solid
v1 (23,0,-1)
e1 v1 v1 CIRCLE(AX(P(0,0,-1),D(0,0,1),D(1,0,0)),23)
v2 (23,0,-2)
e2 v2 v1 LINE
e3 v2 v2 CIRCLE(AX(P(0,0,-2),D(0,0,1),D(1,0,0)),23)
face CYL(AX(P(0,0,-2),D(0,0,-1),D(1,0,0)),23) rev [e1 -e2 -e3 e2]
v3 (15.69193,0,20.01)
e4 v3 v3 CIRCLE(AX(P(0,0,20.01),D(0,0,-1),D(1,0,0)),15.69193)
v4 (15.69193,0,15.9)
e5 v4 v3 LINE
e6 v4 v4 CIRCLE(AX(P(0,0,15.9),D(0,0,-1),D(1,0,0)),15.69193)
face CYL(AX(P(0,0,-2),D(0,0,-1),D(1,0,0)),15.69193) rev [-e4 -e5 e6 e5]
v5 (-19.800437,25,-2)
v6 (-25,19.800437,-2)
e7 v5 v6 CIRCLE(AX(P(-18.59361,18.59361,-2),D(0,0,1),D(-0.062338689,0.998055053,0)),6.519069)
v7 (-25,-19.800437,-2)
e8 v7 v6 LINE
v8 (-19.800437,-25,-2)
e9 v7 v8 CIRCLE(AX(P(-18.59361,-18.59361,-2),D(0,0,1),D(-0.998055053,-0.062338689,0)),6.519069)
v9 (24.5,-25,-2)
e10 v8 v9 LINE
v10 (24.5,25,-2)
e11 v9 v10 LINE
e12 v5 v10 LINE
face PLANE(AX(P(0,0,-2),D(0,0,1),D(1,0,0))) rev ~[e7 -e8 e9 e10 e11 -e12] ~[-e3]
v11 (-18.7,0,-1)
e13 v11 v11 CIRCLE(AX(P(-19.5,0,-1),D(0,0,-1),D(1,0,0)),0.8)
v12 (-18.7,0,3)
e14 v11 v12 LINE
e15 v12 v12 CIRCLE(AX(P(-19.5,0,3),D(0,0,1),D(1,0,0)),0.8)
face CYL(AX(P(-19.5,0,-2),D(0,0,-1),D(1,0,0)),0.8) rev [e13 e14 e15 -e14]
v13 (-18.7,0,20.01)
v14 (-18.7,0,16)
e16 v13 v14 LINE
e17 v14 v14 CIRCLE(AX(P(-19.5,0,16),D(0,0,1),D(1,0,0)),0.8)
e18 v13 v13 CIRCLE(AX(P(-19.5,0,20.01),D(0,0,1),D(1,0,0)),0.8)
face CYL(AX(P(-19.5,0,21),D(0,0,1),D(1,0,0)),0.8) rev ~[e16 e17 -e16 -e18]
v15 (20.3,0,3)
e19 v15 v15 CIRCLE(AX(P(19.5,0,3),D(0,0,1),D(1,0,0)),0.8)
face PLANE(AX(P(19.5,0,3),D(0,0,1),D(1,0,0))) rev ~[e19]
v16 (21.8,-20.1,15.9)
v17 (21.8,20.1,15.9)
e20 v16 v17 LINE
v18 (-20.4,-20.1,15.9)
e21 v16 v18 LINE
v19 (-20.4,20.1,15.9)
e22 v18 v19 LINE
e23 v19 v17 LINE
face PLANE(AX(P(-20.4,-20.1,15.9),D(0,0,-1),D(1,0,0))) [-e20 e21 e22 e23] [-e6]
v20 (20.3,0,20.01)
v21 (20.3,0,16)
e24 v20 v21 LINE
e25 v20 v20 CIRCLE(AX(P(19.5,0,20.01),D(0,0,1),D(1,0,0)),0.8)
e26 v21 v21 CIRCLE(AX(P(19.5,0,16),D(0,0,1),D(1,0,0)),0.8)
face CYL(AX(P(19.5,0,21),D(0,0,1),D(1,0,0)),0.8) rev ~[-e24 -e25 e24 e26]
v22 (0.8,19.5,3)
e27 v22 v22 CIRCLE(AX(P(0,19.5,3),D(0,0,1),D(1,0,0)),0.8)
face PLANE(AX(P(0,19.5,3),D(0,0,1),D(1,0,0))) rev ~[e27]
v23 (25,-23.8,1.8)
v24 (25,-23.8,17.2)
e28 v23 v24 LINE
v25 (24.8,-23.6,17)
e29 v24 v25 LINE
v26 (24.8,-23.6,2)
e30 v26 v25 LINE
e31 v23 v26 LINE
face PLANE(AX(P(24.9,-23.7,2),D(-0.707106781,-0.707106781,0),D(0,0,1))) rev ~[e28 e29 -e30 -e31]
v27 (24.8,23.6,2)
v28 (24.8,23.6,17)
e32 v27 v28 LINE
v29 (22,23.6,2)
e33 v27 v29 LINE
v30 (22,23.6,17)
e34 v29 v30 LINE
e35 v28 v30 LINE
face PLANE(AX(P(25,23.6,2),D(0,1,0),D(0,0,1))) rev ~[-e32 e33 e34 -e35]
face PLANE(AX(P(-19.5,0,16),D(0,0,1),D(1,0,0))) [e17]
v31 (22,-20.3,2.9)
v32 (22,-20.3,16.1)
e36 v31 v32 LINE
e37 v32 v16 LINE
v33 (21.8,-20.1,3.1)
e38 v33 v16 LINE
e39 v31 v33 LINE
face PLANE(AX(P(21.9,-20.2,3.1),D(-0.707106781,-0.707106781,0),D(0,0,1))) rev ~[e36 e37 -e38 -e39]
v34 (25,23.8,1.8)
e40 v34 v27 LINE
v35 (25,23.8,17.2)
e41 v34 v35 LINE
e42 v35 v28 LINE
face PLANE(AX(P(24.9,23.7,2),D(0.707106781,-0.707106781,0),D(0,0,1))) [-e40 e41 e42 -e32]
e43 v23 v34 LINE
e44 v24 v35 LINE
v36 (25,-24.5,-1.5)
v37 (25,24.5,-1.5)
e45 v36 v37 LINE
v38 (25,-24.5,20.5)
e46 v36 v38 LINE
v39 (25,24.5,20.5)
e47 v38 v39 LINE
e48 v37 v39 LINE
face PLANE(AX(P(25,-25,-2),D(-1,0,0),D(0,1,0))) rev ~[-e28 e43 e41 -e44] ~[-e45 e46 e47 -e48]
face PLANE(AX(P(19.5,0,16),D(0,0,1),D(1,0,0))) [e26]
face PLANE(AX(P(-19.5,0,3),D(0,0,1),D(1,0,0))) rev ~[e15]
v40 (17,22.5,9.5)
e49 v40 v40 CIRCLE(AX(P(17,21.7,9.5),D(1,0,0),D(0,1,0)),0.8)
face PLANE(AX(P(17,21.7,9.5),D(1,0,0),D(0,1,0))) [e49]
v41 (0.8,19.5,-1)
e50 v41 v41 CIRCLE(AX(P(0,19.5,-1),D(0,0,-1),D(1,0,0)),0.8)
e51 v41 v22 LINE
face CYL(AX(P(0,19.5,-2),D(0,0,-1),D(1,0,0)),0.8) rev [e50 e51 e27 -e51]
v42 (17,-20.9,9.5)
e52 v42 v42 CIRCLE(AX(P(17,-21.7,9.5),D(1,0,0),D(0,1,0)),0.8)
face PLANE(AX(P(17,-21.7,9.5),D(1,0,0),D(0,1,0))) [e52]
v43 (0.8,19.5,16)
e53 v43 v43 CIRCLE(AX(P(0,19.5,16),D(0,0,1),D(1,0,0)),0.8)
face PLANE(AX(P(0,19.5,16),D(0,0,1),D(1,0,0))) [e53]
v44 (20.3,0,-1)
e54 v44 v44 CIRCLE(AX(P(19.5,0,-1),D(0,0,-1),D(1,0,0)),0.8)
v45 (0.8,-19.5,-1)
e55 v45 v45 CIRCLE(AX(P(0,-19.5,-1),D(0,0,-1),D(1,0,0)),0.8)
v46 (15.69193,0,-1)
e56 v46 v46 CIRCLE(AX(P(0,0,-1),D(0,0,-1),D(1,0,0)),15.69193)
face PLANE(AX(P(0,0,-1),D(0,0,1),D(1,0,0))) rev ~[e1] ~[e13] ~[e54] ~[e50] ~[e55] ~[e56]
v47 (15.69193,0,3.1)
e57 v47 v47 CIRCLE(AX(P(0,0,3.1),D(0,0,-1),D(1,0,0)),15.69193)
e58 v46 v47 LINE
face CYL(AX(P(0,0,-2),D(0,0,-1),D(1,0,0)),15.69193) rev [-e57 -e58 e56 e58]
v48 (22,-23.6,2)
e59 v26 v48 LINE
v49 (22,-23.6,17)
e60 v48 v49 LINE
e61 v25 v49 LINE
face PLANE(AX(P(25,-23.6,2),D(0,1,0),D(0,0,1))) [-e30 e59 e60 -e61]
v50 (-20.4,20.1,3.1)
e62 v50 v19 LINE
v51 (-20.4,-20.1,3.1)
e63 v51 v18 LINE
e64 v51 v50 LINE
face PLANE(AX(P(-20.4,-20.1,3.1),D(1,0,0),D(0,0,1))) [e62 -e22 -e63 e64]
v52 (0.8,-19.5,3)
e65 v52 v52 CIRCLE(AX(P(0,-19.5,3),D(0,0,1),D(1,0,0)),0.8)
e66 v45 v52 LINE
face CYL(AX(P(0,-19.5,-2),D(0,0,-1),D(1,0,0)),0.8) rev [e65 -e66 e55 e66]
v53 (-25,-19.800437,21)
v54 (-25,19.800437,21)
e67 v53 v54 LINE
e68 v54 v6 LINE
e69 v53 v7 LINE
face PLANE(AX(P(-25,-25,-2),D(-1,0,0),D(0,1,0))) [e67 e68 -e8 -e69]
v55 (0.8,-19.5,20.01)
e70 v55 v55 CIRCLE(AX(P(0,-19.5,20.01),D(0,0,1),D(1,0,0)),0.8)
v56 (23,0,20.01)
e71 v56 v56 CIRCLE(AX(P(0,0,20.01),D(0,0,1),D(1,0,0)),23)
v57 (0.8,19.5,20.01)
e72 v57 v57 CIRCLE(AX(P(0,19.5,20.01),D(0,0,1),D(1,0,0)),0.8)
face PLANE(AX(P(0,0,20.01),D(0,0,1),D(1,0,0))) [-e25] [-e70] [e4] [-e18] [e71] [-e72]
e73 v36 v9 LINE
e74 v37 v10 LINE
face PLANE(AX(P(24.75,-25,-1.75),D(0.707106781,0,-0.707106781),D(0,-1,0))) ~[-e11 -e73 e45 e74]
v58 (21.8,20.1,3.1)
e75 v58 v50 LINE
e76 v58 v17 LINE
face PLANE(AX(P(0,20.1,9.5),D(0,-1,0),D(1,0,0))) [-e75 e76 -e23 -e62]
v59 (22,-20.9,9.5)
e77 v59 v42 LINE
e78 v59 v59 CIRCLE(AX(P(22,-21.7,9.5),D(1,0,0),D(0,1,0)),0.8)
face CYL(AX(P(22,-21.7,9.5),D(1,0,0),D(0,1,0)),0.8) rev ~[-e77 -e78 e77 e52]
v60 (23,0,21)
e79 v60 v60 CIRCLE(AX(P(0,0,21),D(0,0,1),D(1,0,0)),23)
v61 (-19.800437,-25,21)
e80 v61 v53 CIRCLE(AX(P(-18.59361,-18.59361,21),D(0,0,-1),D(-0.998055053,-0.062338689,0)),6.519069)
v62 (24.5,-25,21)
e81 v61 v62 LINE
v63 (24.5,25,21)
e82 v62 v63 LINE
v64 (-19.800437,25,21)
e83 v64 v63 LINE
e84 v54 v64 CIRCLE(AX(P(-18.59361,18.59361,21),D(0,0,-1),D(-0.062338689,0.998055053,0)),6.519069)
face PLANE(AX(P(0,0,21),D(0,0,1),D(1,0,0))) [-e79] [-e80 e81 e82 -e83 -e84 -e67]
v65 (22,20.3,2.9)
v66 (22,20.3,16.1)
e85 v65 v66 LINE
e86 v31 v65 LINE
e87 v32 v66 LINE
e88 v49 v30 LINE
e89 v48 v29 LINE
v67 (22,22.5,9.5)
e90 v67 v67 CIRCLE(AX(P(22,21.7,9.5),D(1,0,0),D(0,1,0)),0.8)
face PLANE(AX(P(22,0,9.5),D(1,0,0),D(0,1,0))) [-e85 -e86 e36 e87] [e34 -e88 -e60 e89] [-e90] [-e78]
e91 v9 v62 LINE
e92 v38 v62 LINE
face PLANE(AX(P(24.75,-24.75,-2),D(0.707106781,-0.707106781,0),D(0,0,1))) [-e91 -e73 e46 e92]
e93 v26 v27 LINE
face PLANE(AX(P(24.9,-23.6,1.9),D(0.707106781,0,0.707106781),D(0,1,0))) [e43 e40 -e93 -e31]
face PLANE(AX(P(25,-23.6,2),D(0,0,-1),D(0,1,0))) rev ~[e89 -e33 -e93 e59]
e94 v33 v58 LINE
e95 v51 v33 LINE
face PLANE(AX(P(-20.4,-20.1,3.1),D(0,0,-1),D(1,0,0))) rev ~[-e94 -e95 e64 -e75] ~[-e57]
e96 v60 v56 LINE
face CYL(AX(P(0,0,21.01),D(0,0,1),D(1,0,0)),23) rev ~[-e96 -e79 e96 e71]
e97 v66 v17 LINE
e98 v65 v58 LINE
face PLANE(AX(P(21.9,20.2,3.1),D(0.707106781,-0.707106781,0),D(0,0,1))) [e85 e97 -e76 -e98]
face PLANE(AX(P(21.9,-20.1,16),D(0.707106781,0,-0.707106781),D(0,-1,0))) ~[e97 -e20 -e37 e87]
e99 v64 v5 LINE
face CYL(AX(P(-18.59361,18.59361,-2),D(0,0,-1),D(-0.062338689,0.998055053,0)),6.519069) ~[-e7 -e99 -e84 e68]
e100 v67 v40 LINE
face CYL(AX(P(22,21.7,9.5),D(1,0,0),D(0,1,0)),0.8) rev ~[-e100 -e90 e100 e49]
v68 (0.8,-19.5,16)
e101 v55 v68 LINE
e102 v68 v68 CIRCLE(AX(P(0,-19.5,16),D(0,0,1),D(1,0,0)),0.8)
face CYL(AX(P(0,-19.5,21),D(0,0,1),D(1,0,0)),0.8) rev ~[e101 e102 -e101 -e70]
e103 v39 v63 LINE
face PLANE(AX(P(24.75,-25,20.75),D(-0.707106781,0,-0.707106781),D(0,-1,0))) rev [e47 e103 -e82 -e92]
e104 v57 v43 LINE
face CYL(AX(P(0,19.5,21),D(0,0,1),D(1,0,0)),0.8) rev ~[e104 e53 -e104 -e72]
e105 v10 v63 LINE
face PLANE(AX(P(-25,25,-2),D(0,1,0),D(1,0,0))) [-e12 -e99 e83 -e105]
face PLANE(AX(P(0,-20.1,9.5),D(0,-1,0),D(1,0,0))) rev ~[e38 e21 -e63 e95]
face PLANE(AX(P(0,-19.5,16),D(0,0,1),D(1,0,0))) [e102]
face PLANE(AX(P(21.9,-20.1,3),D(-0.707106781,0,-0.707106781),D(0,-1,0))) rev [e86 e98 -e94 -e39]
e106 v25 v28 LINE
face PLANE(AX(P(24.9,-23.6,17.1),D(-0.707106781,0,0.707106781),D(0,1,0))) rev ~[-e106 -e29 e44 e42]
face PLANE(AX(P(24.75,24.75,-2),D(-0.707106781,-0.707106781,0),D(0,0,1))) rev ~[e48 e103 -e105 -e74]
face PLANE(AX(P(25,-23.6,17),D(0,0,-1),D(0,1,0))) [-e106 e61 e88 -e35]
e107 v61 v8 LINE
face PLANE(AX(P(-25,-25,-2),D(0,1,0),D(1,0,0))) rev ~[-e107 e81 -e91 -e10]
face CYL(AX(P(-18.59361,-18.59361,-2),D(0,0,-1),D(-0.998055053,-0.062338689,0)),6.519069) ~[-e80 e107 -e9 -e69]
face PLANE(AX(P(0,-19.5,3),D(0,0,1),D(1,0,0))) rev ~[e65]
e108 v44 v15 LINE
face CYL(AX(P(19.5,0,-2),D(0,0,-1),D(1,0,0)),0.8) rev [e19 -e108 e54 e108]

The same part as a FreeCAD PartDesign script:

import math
import FreeCAD as App
import Part
import Sketcher


def edges_at(feature, points):
    """Names of the edges that pass closest to the given points."""
    edges = feature.Shape.Edges
    near = lambda p: min(range(len(edges)), key=lambda i: edges[i].distToShape(Part.Vertex(*p))[0])
    return sorted({f"Edge{near(p) + 1}" for p in points})


def add_polygon(sketch, points):
    """Adds a closed chain of lines whose ends are joined by coincident constraints."""
    first, n = sketch.GeometryCount, len(points)
    for a, b in zip(points, points[1:] + points[:1]):
        sketch.addGeometry(Part.LineSegment(App.Vector(*a, 0), App.Vector(*b, 0)), False)
    for i in range(n):
        sketch.addConstraint(Sketcher.Constraint("Coincident", first + i, 2, first + (i + 1) % n, 1))

doc = App.newDocument("Part")
body = doc.addObject("PartDesign::Body", "Body")

# Sketch on XY plane
sketch1 = body.newObject("Sketcher::SketchObject", "Sketch")
sketch1.AttachmentSupport = (doc.getObject("XY_Plane"), [""])
sketch1.MapMode = "FlatFace"
add_polygon(sketch1, [(-25, 25), (-25, -25), (25, -25), (25, 25)])  # lines 0-3
sketch1.addGeometry(Part.Circle(App.Vector(0, 0, 0), App.Vector(0, 0, 1), 16), False)  # 4
sketch1.addConstraint([
    Sketcher.Constraint("Vertical", 0),
    Sketcher.Constraint("Horizontal", 1),
    Sketcher.Constraint("Vertical", 2),
    Sketcher.Constraint("Horizontal", 3),
    Sketcher.Constraint("Coincident", 4, 3, -1, 1),
    Sketcher.Constraint("Symmetric", 0, 2, 2, 2, -1, 1),
    Sketcher.Constraint("Equal", 3, 0),
    Sketcher.Constraint("DistanceX", 1, 1, 1, 2, 50.0),
    Sketcher.Constraint("Diameter", 4, 31.38386),
])
pad1 = body.newObject("PartDesign::Pad", "Pad")
pad1.Profile = sketch1
pad1.Length = 23

# Sketch on XZ plane
sketch2 = body.newObject("Sketcher::SketchObject", "Sketch001")
sketch2.AttachmentSupport = (doc.getObject("XZ_Plane"), [""])
sketch2.MapMode = "FlatFace"
sketch2.AttachmentOffset = App.Placement(App.Vector(0, 0, 20.1), App.Rotation())
add_polygon(sketch2, [(-20, 18), (-20, 5), (20, 5), (20, 18)])  # lines 0-3
sketch2.addConstraint([
    Sketcher.Constraint("Vertical", 0),
    Sketcher.Constraint("Horizontal", 1),
    Sketcher.Constraint("Vertical", 2),
    Sketcher.Constraint("Horizontal", 3),
    Sketcher.Constraint("DistanceX", 1, 1, 1, 2, 40.8),
    Sketcher.Constraint("DistanceY", 0, 2, 0, 1, 12.8),
    Sketcher.Constraint("DistanceX", 0, 2, -1, 1, 20.4),
    Sketcher.Constraint("DistanceY", -1, 1, 0, 2, 5.1),
])
pocket1 = body.newObject("PartDesign::Pocket", "Pocket")
pocket1.Profile = sketch2
pocket1.Length = 40.2

# Sketch on YZ plane
sketch3 = body.newObject("Sketcher::SketchObject", "Sketch002")
sketch3.AttachmentSupport = (doc.getObject("YZ_Plane"), [""])
sketch3.MapMode = "FlatFace"
sketch3.AttachmentOffset = App.Placement(App.Vector(0, 0, 25), App.Rotation())
add_polygon(sketch3, [(-24, 19), (-24, 4), (24, 4), (24, 19)])  # lines 0-3
sketch3.addConstraint([
    Sketcher.Constraint("Vertical", 0),
    Sketcher.Constraint("Horizontal", 1),
    Sketcher.Constraint("Vertical", 2),
    Sketcher.Constraint("Horizontal", 3),
    Sketcher.Constraint("DistanceY", 0, 2, 0, 1, 15.0),
    Sketcher.Constraint("DistanceX", 1, 1, 1, 2, 47.2),
    Sketcher.Constraint("DistanceY", -1, 1, 0, 2, 4.0),
    Sketcher.Constraint("DistanceX", 0, 2, -1, 1, 23.6),
])
pocket2 = body.newObject("PartDesign::Pocket", "Pocket001")
pocket2.Profile = sketch3
pocket2.Length = 3

# Sketch on YZ plane
sketch4 = body.newObject("Sketcher::SketchObject", "Sketch003")
sketch4.AttachmentSupport = (doc.getObject("YZ_Plane"), [""])
sketch4.MapMode = "FlatFace"
sketch4.AttachmentOffset = App.Placement(App.Vector(0, 0, 22), App.Rotation())
sketch4.addGeometry(Part.Circle(App.Vector(-21.7, 11.5, 0), App.Vector(0, 0, 1), 0.8), False)  # 0
sketch4.addGeometry(Part.Circle(App.Vector(21.7, 11.5, 0), App.Vector(0, 0, 1), 0.8), False)  # 1
add_polygon(sketch4, [(-20.1, 17.9), (-20.1, 5.1), (20.1, 5.1), (20.1, 17.9)])  # lines 2-5
sketch4.addConstraint([
    Sketcher.Constraint("Vertical", 2),
    Sketcher.Constraint("Horizontal", 3),
    Sketcher.Constraint("Vertical", 4),
    Sketcher.Constraint("Horizontal", 5),
    Sketcher.Constraint("Equal", 0, 1),
    Sketcher.Constraint("Symmetric", 0, 3, 1, 3, -2),
    Sketcher.Constraint("Diameter", 0, 1.6),
    Sketcher.Constraint("DistanceX", 3, 1, 3, 2, 40.2),
    Sketcher.Constraint("DistanceY", 2, 2, 2, 1, 12.8),
    Sketcher.Constraint("DistanceX", 0, 3, -1, 1, 21.7),
    Sketcher.Constraint("DistanceY", -1, 1, 0, 3, 11.5),
    Sketcher.Constraint("DistanceX", 2, 2, -1, 1, 20.1),
    Sketcher.Constraint("DistanceY", -1, 1, 2, 2, 5.1),
])
pocket3 = body.newObject("PartDesign::Pocket", "Pocket002")
pocket3.Profile = sketch4
pocket3.Length = 5

# Sketch on XY plane
sketch5 = body.newObject("Sketcher::SketchObject", "Sketch004")
sketch5.AttachmentSupport = (doc.getObject("XY_Plane"), [""])
sketch5.MapMode = "FlatFace"
sketch5.addGeometry(Part.Circle(App.Vector(0, 0, 0), App.Vector(0, 0, 1), 23), False)
sketch5.addConstraint([
    Sketcher.Constraint("Coincident", 0, 3, -1, 1),
    Sketcher.Constraint("Diameter", 0, 46.0),
])
pocket4 = body.newObject("PartDesign::Pocket", "Pocket003")
pocket4.Profile = sketch5
pocket4.Length = 1
pocket4.Reversed = True

# Sketch on XY plane
sketch6 = body.newObject("Sketcher::SketchObject", "Sketch005")
sketch6.AttachmentSupport = (doc.getObject("XY_Plane"), [""])
sketch6.MapMode = "FlatFace"
sketch6.AttachmentOffset = App.Placement(App.Vector(0, 0, 23.01), App.Rotation())
sketch6.addGeometry(Part.Circle(App.Vector(0, 0, 0), App.Vector(0, 0, 1), 23), False)
sketch6.addConstraint([
    Sketcher.Constraint("Coincident", 0, 3, -1, 1),
    Sketcher.Constraint("Diameter", 0, 46.0),
])
pocket5 = body.newObject("PartDesign::Pocket", "Pocket004")
pocket5.Profile = sketch6
pocket5.Length = 1

# Sketch on XY plane
sketch7 = body.newObject("Sketcher::SketchObject", "Sketch006")
sketch7.AttachmentSupport = (doc.getObject("XY_Plane"), [""])
sketch7.MapMode = "FlatFace"
sketch7.addGeometry([
    Part.Circle(App.Vector(-19.5, 0, 0), App.Vector(0, 0, 1), 0.8),
    Part.Circle(App.Vector(0, -19.5, 0), App.Vector(0, 0, 1), 0.8),
    Part.Circle(App.Vector(19.5, 0, 0), App.Vector(0, 0, 1), 0.8),
    Part.Circle(App.Vector(0, 19.5, 0), App.Vector(0, 0, 1), 0.8),
], False)
sketch7.addConstraint([
    Sketcher.Constraint("Equal", 0, 1),
    Sketcher.Constraint("Equal", 1, 2),
    Sketcher.Constraint("Equal", 2, 3),
    Sketcher.Constraint("Symmetric", 0, 3, 2, 3, -1, 1),
    Sketcher.Constraint("Symmetric", 1, 3, 3, 3, -1, 1),
    Sketcher.Constraint("PointOnObject", 0, 3, -1),
    Sketcher.Constraint("PointOnObject", 1, 3, -2),
    Sketcher.Constraint("Diameter", 0, 1.6),
    Sketcher.Constraint("DistanceX", 0, 3, 2, 3, 39.0),
    Sketcher.Constraint("DistanceY", 1, 3, 3, 3, 39.0),
])
pocket6 = body.newObject("PartDesign::Pocket", "Pocket005")
pocket6.Profile = sketch7
pocket6.Length = 5
pocket6.Reversed = True

# Sketch on XY plane
sketch8 = body.newObject("Sketcher::SketchObject", "Sketch007")
sketch8.AttachmentSupport = (doc.getObject("XY_Plane"), [""])
sketch8.MapMode = "FlatFace"
sketch8.AttachmentOffset = App.Placement(App.Vector(0, 0, 23), App.Rotation())
sketch8.addGeometry([
    Part.Circle(App.Vector(-19.5, 0, 0), App.Vector(0, 0, 1), 0.8),
    Part.Circle(App.Vector(0, -19.5, 0), App.Vector(0, 0, 1), 0.8),
    Part.Circle(App.Vector(19.5, 0, 0), App.Vector(0, 0, 1), 0.8),
    Part.Circle(App.Vector(0, 19.5, 0), App.Vector(0, 0, 1), 0.8),
], False)
sketch8.addConstraint([
    Sketcher.Constraint("Equal", 0, 1),
    Sketcher.Constraint("Equal", 1, 2),
    Sketcher.Constraint("Equal", 2, 3),
    Sketcher.Constraint("Symmetric", 0, 3, 2, 3, -1, 1),
    Sketcher.Constraint("Symmetric", 1, 3, 3, 3, -1, 1),
    Sketcher.Constraint("PointOnObject", 0, 3, -1),
    Sketcher.Constraint("PointOnObject", 1, 3, -2),
    Sketcher.Constraint("Diameter", 0, 1.6),
    Sketcher.Constraint("DistanceX", 0, 3, 2, 3, 39.0),
    Sketcher.Constraint("DistanceY", 1, 3, 3, 3, 39.0),
])
pocket7 = body.newObject("PartDesign::Pocket", "Pocket006")
pocket7.Profile = sketch8
pocket7.Length = 5

# Sketch on XY plane
sketch9 = body.newObject("Sketcher::SketchObject", "Sketch008")
sketch9.AttachmentSupport = (doc.getObject("XY_Plane"), [""])
sketch9.MapMode = "FlatFace"
sketch9.addGeometry([
    Part.LineSegment(App.Vector(-19, 25, 0), App.Vector(-25, 25, 0)),  # 0
    Part.LineSegment(App.Vector(-25, 25, 0), App.Vector(-25, 19, 0)),  # 1
    Part.ArcOfCircle(Part.Circle(App.Vector(-19, 19, 0), App.Vector(0, 0, 1), 7), math.radians(94), math.radians(176)),  # 2
    Part.LineSegment(App.Vector(-25, -19, 0), App.Vector(-25, -25, 0)),  # 3
    Part.LineSegment(App.Vector(-25, -25, 0), App.Vector(-19, -25, 0)),  # 4
    Part.ArcOfCircle(Part.Circle(App.Vector(-19, -19, 0), App.Vector(0, 0, 1), 7), math.radians(-176), math.radians(-94)),  # 5
], False)
sketch9.addConstraint([
    Sketcher.Constraint("Coincident", 0, 2, 1, 1),
    Sketcher.Constraint("Coincident", 1, 2, 2, 2),
    Sketcher.Constraint("Coincident", 2, 1, 0, 1),
    Sketcher.Constraint("Coincident", 3, 2, 4, 1),
    Sketcher.Constraint("Coincident", 4, 2, 5, 2),
    Sketcher.Constraint("Coincident", 5, 1, 3, 1),
    Sketcher.Constraint("Horizontal", 0),
    Sketcher.Constraint("Vertical", 1),
    Sketcher.Constraint("Vertical", 3),
    Sketcher.Constraint("Horizontal", 4),
    Sketcher.Constraint("Equal", 2, 5),
    Sketcher.Constraint("Symmetric", 2, 3, 5, 3, -1),
    Sketcher.Constraint("Symmetric", 0, 2, 3, 2, -1),
    Sketcher.Constraint("Equal", 4, 1),
    Sketcher.Constraint("DistanceX", 0, 2, 0, 1, 6.1),
    Sketcher.Constraint("DistanceY", -1, 1, 1, 2, 19.0),
    Sketcher.Constraint("DistanceX", 2, 1, -1, 1, 19.0),
    Sketcher.Constraint("Radius", 2, 6.519069),
])
pocket8 = body.newObject("PartDesign::Pocket", "Pocket007")
pocket8.Profile = sketch9
pocket8.Type = "ThroughAll"
pocket8.Reversed = True
doc.recompute()

chamfer = body.newObject("PartDesign::Chamfer", "Chamfer")
chamfer.Base = (pocket8, edges_at(pocket8, [
    (22, 0, 5.1),
    (22, 20.1, 11.5),
    (22, 0, 17.9),
    (22, -20.1, 11.5),
    (25, -23.6, 11.5),
    (25, 0, 4),
    (25, 23.6, 11.5),
    (25, 0, 19),
]))
chamfer.Size = 0.2
doc.recompute()

chamfer2 = body.newObject("PartDesign::Chamfer", "Chamfer001")
chamfer2.Base = (chamfer, edges_at(chamfer, [
    (25, 25, 11.5),
    (25, 0, 0),
    (25, 0, 23),
    (25, -25, 11.5),
]))
chamfer2.Size = 0.5
body2 = doc.addObject("PartDesign::Body", "Body001")
doc.recompute()

body.Placement = App.Placement(App.Vector(0, 0, -2), App.Rotation(App.Vector(0, 0, 1), 0))
boolean = body2.newObject("PartDesign::Boolean", "Boolean")
boolean.Type = "Fuse"
boolean.addObjects([body])

doc.recompute()
